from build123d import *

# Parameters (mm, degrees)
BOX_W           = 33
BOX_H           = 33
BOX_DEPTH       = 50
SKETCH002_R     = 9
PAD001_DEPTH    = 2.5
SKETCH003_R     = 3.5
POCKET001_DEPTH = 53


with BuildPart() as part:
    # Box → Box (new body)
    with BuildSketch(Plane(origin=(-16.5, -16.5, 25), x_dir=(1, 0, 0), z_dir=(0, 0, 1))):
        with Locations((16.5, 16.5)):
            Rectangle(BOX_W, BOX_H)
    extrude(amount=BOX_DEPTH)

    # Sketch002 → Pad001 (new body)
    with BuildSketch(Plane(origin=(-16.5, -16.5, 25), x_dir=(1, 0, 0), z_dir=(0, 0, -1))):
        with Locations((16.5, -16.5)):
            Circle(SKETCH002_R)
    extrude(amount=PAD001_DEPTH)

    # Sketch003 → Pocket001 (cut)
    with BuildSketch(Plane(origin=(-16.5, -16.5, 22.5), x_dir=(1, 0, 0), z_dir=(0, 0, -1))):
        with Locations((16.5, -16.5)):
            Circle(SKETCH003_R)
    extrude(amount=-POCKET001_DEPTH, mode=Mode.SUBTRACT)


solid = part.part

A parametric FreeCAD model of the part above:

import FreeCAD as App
import Part
import Sketcher

V = App.Vector


def add_polygon(sketch, points):
    """Adds a closed chain of lines whose ends are joined by coincident constraints."""
    first, n = sketch.GeometryCount, len(points)
    for a, b in zip(points, points[1:] + points[:1]):
        sketch.addGeometry(Part.LineSegment(App.Vector(*a, 0), App.Vector(*b, 0)), False)
    for i in range(n):
        sketch.addConstraint(Sketcher.Constraint("Coincident", first + i, 2, first + (i + 1) % n, 1))

doc = App.newDocument("Part")
body = doc.addObject("PartDesign::Body", "Body")

sketch1 = body.newObject("Sketcher::SketchObject", "Sketch")
sketch1.AttachmentSupport = (doc.getObject("XY_Plane"), [""])
sketch1.MapMode = "FlatFace"
sketch1.AttachmentOffset = App.Placement(V(0, 0, 25), App.Rotation())
add_polygon(sketch1, [(-16.5, 16.5), (-16.5, -16.5), (16.5, -16.5), (16.5, 16.5)])
sketch1.addConstraint([
    Sketcher.Constraint("Vertical", 0),
    Sketcher.Constraint("Horizontal", 1),
    Sketcher.Constraint("Vertical", 2),
    Sketcher.Constraint("Horizontal", 3),
    Sketcher.Constraint("Symmetric", 0, 2, 2, 2, -1, 1),
    Sketcher.Constraint("Equal", 3, 0),
    Sketcher.Constraint("DistanceX", 1, 1, 1, 2, 33.0),
])
pad1 = body.newObject("PartDesign::Pad", "Pad")
pad1.Profile = sketch1
pad1.Length = 50

sketch2 = body.newObject("Sketcher::SketchObject", "Sketch001")
sketch2.AttachmentSupport = (doc.getObject("XY_Plane"), [""])
sketch2.MapMode = "FlatFace"
sketch2.AttachmentOffset = App.Placement(V(0, 0, 25), App.Rotation())
sketch2.addGeometry(Part.Circle(V(0, 0, 0), V(0, 0, 1), 9), False)
sketch2.addConstraint([
    Sketcher.Constraint("Coincident", 0, 3, -1, 1),
    Sketcher.Constraint("Diameter", 0, 18.0),
])
pad2 = body.newObject("PartDesign::Pad", "Pad001")
pad2.Profile = sketch2
pad2.Length = 2.5
pad2.Reversed = True

sketch3 = body.newObject("Sketcher::SketchObject", "Sketch002")
sketch3.AttachmentSupport = (doc.getObject("XY_Plane"), [""])
sketch3.MapMode = "FlatFace"
sketch3.AttachmentOffset = App.Placement(V(0, 0, 22.5), App.Rotation())
sketch3.addGeometry(Part.Circle(V(0, 0, 0), V(0, 0, 1), 3.5), False)
sketch3.addConstraint([
    Sketcher.Constraint("Coincident", 0, 3, -1, 1),
    Sketcher.Constraint("Diameter", 0, 7.0),
])
pocket1 = body.newObject("PartDesign::Pocket", "Pocket")
pocket1.Profile = sketch3
pocket1.Length = 53
pocket1.Reversed = True

doc.recompute()
